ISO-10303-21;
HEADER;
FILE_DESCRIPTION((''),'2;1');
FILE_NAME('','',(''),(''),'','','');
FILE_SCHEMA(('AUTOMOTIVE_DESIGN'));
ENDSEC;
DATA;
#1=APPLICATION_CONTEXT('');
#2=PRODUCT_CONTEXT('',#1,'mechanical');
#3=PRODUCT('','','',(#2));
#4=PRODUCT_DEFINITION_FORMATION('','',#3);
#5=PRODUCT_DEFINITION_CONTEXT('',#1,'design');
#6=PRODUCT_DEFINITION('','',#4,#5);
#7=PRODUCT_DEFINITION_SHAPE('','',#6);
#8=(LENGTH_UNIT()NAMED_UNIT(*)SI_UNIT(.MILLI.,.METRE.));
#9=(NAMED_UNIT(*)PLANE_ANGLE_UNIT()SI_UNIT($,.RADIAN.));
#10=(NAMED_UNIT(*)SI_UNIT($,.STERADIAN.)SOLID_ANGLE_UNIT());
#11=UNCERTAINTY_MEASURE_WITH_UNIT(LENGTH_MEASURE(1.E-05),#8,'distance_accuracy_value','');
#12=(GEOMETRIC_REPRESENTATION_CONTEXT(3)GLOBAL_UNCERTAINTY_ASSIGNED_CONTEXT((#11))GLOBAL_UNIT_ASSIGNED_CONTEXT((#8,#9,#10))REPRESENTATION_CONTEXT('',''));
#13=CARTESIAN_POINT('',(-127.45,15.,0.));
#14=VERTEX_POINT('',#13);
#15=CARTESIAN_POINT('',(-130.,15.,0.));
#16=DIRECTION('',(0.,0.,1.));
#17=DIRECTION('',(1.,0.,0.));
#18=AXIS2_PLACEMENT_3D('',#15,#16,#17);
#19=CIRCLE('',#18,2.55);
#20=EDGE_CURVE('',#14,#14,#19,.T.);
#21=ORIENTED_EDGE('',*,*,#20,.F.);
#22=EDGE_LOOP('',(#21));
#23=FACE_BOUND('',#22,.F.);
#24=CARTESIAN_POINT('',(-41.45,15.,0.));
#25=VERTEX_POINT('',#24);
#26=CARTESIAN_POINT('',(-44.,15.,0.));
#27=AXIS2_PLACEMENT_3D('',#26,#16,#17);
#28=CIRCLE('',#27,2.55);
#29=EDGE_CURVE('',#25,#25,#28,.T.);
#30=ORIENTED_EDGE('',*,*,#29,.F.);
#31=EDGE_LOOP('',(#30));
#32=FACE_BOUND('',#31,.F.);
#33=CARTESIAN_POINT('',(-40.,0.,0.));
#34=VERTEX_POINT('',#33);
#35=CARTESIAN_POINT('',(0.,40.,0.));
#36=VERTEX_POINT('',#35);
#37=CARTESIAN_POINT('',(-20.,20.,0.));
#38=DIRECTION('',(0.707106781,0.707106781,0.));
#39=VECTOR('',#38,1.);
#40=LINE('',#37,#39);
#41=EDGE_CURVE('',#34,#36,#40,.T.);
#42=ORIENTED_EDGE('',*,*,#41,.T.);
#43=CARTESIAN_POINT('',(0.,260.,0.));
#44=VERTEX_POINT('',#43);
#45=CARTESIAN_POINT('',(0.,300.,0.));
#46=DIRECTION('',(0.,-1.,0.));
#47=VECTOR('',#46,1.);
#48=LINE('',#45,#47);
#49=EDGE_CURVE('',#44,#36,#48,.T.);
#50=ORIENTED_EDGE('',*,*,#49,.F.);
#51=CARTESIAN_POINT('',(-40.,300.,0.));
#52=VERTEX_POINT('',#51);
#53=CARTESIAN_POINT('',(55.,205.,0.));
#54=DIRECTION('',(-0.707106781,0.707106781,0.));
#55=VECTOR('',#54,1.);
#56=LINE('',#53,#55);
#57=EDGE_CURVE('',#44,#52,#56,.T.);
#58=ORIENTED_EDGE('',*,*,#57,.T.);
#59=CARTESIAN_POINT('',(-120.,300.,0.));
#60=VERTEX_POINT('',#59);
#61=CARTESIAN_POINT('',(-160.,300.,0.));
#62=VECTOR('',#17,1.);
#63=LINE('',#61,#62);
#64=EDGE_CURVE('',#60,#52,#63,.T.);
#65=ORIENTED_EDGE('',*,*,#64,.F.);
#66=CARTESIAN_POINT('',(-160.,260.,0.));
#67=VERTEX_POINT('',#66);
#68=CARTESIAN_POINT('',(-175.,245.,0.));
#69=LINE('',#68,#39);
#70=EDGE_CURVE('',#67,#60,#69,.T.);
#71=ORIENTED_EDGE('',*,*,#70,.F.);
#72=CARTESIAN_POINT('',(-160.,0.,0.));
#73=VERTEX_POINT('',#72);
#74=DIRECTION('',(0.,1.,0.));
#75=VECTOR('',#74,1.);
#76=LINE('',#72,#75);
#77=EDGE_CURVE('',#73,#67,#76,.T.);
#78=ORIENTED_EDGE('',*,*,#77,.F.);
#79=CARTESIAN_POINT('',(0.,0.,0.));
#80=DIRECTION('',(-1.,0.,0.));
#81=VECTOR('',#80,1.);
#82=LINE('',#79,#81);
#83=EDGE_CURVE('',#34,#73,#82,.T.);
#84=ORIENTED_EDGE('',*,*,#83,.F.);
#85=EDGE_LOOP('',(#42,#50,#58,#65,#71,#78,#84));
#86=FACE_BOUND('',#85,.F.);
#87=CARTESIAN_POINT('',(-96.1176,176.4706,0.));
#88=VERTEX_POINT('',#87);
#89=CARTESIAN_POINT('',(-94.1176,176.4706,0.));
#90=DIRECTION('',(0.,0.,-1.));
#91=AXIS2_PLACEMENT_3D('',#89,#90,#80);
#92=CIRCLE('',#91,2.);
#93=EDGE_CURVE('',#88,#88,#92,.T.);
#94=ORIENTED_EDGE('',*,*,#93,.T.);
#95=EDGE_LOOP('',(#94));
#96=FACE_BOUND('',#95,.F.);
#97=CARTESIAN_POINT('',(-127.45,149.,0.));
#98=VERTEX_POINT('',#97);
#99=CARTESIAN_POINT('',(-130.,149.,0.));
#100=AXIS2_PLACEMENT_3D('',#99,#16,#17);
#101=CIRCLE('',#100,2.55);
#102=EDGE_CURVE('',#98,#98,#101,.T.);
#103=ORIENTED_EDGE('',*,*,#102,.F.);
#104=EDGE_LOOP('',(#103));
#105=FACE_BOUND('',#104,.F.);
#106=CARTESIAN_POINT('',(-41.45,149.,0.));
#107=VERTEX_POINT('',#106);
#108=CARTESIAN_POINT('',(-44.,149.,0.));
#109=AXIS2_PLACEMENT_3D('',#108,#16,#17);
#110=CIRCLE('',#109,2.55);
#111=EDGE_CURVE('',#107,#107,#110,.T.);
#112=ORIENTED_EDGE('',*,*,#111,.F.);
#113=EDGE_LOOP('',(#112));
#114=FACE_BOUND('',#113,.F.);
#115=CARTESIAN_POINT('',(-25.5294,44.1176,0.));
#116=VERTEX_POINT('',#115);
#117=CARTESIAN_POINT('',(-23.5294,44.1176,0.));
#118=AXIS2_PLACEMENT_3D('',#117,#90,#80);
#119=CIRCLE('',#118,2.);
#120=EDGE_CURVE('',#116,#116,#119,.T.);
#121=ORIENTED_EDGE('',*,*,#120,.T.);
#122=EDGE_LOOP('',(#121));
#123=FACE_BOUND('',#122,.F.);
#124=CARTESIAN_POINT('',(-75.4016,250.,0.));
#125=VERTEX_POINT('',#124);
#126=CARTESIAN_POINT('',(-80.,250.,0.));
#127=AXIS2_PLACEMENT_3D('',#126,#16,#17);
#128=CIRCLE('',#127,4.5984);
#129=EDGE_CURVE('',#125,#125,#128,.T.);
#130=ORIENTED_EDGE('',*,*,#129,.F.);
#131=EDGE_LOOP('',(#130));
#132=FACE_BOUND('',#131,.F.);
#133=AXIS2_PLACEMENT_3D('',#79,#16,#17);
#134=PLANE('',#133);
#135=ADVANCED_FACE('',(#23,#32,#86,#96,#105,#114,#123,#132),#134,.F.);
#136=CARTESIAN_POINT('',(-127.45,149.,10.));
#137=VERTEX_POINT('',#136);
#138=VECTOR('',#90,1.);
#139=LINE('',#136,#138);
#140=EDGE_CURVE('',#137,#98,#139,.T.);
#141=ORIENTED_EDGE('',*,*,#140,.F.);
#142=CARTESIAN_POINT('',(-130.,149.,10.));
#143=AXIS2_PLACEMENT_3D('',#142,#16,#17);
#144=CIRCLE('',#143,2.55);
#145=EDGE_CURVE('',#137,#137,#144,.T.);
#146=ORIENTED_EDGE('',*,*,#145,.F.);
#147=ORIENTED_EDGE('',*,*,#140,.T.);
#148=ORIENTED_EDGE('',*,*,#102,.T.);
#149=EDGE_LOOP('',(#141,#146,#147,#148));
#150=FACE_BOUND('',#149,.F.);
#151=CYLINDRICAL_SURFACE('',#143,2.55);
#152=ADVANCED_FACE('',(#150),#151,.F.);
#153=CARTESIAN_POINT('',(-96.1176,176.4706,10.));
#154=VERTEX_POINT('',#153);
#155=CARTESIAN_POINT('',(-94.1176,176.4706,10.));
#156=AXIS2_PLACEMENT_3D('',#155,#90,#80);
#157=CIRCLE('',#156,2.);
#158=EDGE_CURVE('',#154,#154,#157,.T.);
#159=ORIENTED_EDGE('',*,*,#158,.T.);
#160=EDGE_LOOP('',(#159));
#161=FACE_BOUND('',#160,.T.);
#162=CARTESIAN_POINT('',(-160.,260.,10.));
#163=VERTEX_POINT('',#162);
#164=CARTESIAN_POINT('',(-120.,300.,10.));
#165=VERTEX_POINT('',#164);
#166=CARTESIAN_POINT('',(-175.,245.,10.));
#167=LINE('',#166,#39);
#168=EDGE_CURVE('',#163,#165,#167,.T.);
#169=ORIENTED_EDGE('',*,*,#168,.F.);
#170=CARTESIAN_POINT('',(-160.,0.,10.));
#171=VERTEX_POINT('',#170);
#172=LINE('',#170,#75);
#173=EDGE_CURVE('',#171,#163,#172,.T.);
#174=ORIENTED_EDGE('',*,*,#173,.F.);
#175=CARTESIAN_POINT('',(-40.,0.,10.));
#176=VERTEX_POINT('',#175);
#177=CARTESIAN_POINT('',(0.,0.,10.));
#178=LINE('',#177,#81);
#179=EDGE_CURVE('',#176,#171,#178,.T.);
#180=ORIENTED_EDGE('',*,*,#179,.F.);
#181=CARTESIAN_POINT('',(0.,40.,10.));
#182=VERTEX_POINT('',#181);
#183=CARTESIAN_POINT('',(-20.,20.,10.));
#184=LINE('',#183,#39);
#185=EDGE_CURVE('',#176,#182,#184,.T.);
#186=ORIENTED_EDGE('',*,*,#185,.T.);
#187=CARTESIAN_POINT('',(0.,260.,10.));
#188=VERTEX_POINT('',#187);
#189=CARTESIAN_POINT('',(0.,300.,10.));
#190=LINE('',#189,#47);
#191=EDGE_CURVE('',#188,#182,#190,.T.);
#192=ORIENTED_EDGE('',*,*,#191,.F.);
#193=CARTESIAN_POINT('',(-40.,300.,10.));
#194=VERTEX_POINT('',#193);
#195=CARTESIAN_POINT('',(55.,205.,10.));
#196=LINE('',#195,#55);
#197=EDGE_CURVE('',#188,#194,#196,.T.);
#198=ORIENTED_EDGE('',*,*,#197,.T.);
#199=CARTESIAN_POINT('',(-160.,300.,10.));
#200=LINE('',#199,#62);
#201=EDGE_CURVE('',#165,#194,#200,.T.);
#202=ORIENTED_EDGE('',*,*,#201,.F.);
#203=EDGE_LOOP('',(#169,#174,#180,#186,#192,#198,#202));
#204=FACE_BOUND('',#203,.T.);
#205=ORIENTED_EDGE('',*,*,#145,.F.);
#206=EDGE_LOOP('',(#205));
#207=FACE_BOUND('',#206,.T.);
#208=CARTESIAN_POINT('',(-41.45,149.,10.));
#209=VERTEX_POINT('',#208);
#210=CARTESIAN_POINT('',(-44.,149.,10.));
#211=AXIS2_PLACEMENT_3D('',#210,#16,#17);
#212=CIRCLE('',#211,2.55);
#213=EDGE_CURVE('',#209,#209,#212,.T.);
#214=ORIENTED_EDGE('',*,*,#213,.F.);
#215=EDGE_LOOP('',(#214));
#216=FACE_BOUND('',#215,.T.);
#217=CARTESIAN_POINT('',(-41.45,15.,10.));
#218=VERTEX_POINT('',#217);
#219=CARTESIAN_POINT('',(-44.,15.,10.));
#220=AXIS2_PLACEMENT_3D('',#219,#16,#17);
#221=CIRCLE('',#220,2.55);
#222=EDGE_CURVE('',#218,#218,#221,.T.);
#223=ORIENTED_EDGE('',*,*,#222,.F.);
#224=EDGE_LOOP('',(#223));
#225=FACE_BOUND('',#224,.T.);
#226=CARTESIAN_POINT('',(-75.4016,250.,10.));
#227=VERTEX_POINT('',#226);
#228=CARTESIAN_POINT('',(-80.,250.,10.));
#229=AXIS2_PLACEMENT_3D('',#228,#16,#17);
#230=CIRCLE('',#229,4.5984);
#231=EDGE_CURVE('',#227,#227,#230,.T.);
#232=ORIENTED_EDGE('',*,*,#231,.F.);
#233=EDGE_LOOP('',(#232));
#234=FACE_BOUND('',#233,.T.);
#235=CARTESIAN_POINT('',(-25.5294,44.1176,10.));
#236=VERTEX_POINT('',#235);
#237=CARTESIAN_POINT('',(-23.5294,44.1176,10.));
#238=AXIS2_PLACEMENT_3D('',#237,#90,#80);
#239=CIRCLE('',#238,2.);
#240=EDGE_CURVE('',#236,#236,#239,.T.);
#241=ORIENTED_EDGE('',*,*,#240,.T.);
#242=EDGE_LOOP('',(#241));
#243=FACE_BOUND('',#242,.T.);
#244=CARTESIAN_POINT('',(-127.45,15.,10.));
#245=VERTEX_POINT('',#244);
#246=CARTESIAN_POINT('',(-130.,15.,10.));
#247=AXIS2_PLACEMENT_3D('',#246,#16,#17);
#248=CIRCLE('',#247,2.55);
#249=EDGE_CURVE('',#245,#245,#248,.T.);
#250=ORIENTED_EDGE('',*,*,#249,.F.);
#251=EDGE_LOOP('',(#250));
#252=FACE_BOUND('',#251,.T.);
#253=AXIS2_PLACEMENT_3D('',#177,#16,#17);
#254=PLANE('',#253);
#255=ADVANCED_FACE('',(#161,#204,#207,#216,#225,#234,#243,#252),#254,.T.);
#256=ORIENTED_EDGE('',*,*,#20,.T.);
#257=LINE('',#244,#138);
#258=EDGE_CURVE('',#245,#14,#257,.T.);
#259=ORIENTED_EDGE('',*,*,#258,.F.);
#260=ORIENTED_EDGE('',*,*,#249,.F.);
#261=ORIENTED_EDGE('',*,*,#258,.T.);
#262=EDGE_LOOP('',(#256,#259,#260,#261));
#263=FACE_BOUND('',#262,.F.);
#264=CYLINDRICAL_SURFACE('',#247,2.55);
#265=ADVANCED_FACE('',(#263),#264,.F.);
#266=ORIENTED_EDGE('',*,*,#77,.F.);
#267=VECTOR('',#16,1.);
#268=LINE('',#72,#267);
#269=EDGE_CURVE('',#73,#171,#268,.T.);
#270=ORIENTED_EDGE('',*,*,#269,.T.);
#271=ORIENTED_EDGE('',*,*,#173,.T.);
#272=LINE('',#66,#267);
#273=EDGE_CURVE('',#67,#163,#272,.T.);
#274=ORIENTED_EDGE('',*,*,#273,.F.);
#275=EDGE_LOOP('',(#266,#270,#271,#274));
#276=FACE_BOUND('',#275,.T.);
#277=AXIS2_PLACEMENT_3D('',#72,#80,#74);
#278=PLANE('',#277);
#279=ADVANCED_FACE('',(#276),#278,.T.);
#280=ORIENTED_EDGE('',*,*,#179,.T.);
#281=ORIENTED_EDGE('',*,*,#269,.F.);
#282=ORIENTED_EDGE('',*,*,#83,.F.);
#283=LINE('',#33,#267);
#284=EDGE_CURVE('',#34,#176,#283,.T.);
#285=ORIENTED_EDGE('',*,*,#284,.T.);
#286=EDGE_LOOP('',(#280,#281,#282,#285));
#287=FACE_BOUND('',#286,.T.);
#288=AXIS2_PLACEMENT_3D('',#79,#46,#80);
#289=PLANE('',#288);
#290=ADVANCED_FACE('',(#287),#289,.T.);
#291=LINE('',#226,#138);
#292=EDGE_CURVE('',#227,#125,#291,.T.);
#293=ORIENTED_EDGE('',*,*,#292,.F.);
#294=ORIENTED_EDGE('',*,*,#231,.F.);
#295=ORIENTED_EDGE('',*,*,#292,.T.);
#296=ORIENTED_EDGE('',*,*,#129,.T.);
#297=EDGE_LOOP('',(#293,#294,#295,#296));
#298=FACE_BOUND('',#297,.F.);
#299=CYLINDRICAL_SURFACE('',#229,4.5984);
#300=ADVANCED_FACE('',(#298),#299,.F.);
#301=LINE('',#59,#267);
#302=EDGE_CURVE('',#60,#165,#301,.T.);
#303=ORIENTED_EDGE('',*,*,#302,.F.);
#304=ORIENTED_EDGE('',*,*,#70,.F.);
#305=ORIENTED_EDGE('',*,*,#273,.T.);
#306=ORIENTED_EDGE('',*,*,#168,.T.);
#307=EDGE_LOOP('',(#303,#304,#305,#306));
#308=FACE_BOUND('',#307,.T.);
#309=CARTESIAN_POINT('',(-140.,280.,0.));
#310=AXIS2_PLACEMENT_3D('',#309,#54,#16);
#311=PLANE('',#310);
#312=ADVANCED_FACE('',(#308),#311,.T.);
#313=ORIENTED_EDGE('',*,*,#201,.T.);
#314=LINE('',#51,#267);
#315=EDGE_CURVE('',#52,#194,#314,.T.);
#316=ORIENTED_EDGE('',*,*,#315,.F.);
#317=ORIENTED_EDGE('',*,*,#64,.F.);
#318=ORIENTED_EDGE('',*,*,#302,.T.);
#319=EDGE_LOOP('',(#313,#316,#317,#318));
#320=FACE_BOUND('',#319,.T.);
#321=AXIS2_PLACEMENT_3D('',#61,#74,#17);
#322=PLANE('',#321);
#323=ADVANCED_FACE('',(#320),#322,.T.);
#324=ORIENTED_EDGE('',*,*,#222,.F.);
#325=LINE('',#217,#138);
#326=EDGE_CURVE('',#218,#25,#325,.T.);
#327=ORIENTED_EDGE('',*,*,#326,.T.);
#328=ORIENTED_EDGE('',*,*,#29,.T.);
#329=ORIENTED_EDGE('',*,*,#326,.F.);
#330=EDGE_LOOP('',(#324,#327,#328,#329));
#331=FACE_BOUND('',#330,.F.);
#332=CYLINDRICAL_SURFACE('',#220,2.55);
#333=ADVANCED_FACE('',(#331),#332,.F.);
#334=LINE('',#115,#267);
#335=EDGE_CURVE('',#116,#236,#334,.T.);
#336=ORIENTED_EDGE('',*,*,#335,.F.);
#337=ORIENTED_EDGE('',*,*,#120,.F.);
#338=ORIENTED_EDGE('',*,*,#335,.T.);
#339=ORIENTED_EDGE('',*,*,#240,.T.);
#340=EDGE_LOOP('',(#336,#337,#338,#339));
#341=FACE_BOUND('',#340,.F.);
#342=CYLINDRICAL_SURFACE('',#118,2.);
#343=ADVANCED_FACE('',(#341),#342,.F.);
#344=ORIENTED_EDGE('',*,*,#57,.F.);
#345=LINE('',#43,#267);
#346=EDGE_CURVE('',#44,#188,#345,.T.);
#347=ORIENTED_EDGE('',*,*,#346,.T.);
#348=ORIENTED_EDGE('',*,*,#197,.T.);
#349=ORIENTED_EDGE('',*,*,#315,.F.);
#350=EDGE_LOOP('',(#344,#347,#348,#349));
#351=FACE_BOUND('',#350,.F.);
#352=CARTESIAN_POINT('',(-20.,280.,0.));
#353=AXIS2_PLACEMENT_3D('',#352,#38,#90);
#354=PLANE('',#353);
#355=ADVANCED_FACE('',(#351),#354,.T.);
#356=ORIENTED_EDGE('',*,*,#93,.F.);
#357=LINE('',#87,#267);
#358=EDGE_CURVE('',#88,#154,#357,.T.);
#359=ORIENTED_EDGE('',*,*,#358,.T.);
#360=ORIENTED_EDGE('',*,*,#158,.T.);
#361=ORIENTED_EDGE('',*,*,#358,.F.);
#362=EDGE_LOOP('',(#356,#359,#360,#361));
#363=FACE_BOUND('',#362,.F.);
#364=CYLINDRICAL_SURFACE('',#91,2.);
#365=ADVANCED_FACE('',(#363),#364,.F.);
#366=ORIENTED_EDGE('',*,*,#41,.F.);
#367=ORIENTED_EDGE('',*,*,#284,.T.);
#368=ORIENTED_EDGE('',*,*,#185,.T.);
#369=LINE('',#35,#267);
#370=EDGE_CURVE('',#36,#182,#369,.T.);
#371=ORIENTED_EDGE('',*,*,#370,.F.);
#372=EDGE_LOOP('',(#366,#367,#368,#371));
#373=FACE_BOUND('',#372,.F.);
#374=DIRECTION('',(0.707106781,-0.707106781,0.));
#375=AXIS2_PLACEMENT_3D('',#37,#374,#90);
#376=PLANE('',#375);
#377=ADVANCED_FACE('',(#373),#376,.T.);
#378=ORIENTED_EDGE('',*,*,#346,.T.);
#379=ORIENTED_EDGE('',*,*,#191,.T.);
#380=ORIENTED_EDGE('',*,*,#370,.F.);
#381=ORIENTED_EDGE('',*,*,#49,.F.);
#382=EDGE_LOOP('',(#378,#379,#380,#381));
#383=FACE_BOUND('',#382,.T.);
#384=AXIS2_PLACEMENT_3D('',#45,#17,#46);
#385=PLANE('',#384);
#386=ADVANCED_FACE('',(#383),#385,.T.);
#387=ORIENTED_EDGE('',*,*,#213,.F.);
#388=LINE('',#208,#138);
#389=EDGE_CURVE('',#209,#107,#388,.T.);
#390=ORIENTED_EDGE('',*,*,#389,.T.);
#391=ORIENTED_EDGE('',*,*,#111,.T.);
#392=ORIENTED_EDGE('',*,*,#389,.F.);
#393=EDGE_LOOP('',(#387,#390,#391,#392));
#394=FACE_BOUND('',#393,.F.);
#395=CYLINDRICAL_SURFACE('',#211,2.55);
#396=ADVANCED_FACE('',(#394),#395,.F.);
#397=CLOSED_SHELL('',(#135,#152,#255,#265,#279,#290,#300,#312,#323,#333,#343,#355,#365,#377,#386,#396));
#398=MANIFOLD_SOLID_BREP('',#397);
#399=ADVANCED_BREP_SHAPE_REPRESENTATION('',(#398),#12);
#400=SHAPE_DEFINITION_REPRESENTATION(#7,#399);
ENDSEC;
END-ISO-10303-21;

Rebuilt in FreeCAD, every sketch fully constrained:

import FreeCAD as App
import Part
import Sketcher

V = App.Vector


def edges_at(feature, points):
    """Names of the edges that pass closest to the given points."""
    edges = feature.Shape.Edges
    near = lambda p: min(range(len(edges)), key=lambda i: edges[i].distToShape(Part.Vertex(*p))[0])
    return sorted({f"Edge{near(p) + 1}" for p in points})


def add_polygon(sketch, points):
    """Adds a closed chain of lines whose ends are joined by coincident constraints."""
    first, n = sketch.GeometryCount, len(points)
    for a, b in zip(points, points[1:] + points[:1]):
        sketch.addGeometry(Part.LineSegment(App.Vector(*a, 0), App.Vector(*b, 0)), False)
    for i in range(n):
        sketch.addConstraint(Sketcher.Constraint("Coincident", first + i, 2, first + (i + 1) % n, 1))

doc = App.newDocument("Part")
body = doc.addObject("PartDesign::Body", "Body")

# Sketch on XY plane
sketch1 = body.newObject("Sketcher::SketchObject", "Sketch")
sketch1.AttachmentSupport = (doc.getObject("XY_Plane"), [""])
sketch1.MapMode = "FlatFace"
add_polygon(sketch1, [(-160, 0), (0, 0), (0, 300), (-160, 300)])  # lines 0-3
sketch1.addConstraint(Sketcher.Constraint("Horizontal", 0))
sketch1.addConstraint(Sketcher.Constraint("Vertical", 1))
sketch1.addConstraint(Sketcher.Constraint("Horizontal", 2))
sketch1.addConstraint(Sketcher.Constraint("Vertical", 3))
sketch1.addConstraint(Sketcher.Constraint("Coincident", 0, 2, -1, 1))
sketch1.addConstraint(Sketcher.Constraint("DistanceX", 0, 1, 0, 2, 160.0))
sketch1.addConstraint(Sketcher.Constraint("DistanceY", 1, 1, 1, 2, 300.0))
pad1 = body.newObject("PartDesign::Pad", "Pad")
pad1.Profile = sketch1
pad1.Length = 10

# Sketch on XY plane
sketch2 = body.newObject("Sketcher::SketchObject", "Sketch001")
sketch2.AttachmentSupport = (doc.getObject("XY_Plane"), [""])
sketch2.MapMode = "FlatFace"
sketch2.AttachmentOffset = App.Placement(V(0, 0, 10), App.Rotation())
sketch2.addGeometry(Part.Circle(V(-130, 15, 0), V(0, 0, 1), 2.5), False)
sketch2.addGeometry(Part.Circle(V(-44, 15, 0), V(0, 0, 1), 2.5), False)
sketch2.addGeometry(Part.Circle(V(-130, 149, 0), V(0, 0, 1), 2.5), False)
sketch2.addGeometry(Part.Circle(V(-44, 149, 0), V(0, 0, 1), 2.5), False)
sketch2.addGeometry(Part.Circle(V(-80, 250, 0), V(0, 0, 1), 4.6), False)
sketch2.addConstraint(Sketcher.Constraint("Equal", 0, 1))
sketch2.addConstraint(Sketcher.Constraint("Equal", 1, 2))
sketch2.addConstraint(Sketcher.Constraint("Equal", 2, 3))
sketch2.addConstraint(Sketcher.Constraint("Horizontal", 0, 3, 1, 3))
sketch2.addConstraint(Sketcher.Constraint("Horizontal", 2, 3, 3, 3))
sketch2.addConstraint(Sketcher.Constraint("Vertical", 0, 3, 2, 3))
sketch2.addConstraint(Sketcher.Constraint("Vertical", 1, 3, 3, 3))
sketch2.addConstraint(Sketcher.Constraint("Diameter", 0, 5.1))
sketch2.addConstraint(Sketcher.Constraint("DistanceY", -1, 1, 0, 3, 15.0))
sketch2.addConstraint(Sketcher.Constraint("DistanceX", 4, 3, -1, 1, 80.0))
sketch2.addConstraint(Sketcher.Constraint("DistanceX", 0, 3, 1, 3, 86.0))
sketch2.addConstraint(Sketcher.Constraint("DistanceY", 0, 3, 2, 3, 134.0))
sketch2.addConstraint(Sketcher.Constraint("DistanceX", 2, 3, 4, 3, 50.0))
sketch2.addConstraint(Sketcher.Constraint("DistanceY", -1, 1, 4, 3, 250.0))
sketch2.addConstraint(Sketcher.Constraint("Diameter", 4, 9.1968))
pocket1 = body.newObject("PartDesign::Pocket", "Pocket")
pocket1.Profile = sketch2
pocket1.Type = "ThroughAll"
doc.recompute()

chamfer = body.newObject("PartDesign::Chamfer", "Chamfer")
chamfer.Base = (pocket1, edges_at(pocket1, [(0, 0, 5), (-160, 300, 5), (0, 300, 5)]))
chamfer.Size = 40

# Sketch on XY plane
sketch3 = body.newObject("Sketcher::SketchObject", "Sketch002")
sketch3.AttachmentSupport = (doc.getObject("XY_Plane"), [""])
sketch3.MapMode = "FlatFace"
sketch3.addGeometry(Part.Circle(V(-94.1, 176.5, 0), V(0, 0, 1), 2), False)
sketch3.addGeometry(Part.Circle(V(-23.5, 44.1, 0), V(0, 0, 1), 2), False)
sketch3.addConstraint(Sketcher.Constraint("Equal", 0, 1))
sketch3.addConstraint(Sketcher.Constraint("Diameter", 0, 4.0))
sketch3.addConstraint(Sketcher.Constraint("DistanceY", 1, 3, 0, 3, 132.353))
sketch3.addConstraint(Sketcher.Constraint("DistanceX", 0, 3, -1, 1, 94.1176))
sketch3.addConstraint(Sketcher.Constraint("DistanceY", -1, 1, 0, 3, 176.4706))
sketch3.addConstraint(Sketcher.Constraint("DistanceX", 1, 3, -1, 1, 23.5294))
pocket2 = body.newObject("PartDesign::Pocket", "Pocket001")
pocket2.Profile = sketch3
pocket2.Length = 10
pocket2.Reversed = True

doc.recompute()
